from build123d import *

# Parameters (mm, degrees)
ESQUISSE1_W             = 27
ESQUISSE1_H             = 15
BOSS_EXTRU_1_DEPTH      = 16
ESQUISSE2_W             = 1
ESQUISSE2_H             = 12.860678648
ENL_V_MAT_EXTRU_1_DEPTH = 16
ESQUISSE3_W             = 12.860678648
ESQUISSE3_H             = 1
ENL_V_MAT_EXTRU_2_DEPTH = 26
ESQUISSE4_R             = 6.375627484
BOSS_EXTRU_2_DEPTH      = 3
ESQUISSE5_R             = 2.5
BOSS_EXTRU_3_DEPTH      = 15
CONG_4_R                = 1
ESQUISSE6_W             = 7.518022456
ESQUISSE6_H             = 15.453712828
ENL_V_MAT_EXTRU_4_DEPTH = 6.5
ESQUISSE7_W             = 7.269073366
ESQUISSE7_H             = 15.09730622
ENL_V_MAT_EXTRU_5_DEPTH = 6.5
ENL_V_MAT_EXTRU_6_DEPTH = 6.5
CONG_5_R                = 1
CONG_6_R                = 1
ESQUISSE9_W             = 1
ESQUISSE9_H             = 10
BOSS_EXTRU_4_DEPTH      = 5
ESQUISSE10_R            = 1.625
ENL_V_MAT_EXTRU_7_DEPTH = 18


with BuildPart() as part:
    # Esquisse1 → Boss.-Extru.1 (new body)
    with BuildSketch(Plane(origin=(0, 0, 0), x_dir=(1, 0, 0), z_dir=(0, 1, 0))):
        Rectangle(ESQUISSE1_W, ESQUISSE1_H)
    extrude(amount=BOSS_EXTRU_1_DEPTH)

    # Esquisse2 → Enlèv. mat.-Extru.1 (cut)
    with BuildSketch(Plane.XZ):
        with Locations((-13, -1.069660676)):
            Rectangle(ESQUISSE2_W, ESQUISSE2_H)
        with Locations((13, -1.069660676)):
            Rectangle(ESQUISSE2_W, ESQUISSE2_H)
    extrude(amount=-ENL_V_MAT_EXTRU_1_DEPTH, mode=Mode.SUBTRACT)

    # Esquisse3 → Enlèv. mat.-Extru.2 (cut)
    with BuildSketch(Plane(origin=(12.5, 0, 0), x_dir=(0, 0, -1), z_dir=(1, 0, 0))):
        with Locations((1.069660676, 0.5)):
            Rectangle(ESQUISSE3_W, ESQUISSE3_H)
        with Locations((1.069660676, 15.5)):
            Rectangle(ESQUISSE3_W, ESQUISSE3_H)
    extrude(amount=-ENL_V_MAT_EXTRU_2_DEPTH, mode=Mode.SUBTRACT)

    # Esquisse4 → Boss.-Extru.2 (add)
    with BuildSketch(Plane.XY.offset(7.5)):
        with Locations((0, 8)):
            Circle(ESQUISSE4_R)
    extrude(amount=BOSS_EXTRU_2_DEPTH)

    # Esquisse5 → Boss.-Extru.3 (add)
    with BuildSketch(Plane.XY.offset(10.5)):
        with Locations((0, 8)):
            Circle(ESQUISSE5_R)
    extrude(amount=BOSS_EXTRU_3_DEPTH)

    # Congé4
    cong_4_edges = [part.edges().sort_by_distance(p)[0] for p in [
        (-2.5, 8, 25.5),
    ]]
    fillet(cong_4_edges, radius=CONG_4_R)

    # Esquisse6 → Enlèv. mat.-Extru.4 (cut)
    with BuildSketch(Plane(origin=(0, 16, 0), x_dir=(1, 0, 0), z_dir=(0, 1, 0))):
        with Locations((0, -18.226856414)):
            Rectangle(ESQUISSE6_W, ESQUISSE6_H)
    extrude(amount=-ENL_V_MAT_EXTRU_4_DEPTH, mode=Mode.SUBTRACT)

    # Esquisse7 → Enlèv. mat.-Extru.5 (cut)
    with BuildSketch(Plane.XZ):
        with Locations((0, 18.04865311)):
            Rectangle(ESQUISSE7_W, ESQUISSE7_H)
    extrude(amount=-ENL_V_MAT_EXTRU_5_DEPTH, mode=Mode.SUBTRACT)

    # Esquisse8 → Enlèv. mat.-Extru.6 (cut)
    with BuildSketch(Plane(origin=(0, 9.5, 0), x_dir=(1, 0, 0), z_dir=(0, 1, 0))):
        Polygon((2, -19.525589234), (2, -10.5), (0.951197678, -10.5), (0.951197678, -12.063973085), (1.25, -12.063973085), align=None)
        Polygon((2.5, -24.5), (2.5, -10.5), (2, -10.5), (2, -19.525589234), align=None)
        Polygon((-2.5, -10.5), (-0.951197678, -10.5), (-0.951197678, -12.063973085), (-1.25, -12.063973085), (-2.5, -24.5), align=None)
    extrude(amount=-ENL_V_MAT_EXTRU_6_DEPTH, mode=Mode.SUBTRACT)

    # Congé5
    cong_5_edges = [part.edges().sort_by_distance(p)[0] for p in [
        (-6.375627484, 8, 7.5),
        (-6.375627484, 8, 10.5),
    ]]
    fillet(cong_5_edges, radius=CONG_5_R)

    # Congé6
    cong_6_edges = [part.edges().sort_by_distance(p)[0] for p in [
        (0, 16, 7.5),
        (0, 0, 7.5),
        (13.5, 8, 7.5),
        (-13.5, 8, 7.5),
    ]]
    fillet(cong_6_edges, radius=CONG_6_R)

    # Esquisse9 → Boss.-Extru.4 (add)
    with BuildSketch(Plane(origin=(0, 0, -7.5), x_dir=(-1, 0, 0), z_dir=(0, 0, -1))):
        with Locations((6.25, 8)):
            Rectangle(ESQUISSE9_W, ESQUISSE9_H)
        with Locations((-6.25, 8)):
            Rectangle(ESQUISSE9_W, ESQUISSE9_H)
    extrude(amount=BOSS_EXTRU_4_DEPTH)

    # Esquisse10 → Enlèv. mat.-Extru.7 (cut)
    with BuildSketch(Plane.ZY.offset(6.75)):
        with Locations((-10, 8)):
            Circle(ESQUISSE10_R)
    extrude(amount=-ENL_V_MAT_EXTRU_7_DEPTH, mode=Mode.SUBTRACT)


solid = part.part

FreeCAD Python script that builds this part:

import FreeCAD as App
import Part
import Sketcher

V = App.Vector


def edges_at(feature, points):
    """Names of the edges that pass closest to the given points."""
    edges = feature.Shape.Edges
    near = lambda p: min(range(len(edges)), key=lambda i: edges[i].distToShape(Part.Vertex(*p))[0])
    return sorted({f"Edge{near(p) + 1}" for p in points})


def add_polygon(sketch, points):
    """Adds a closed chain of lines whose ends are joined by coincident constraints."""
    first, n = sketch.GeometryCount, len(points)
    for a, b in zip(points, points[1:] + points[:1]):
        sketch.addGeometry(Part.LineSegment(App.Vector(*a, 0), App.Vector(*b, 0)), False)
    for i in range(n):
        sketch.addConstraint(Sketcher.Constraint("Coincident", first + i, 2, first + (i + 1) % n, 1))

doc = App.newDocument("Part")
body = doc.addObject("PartDesign::Body", "Body")

# Sketch on XZ plane
sketch1 = body.newObject("Sketcher::SketchObject", "Sketch")
sketch1.AttachmentSupport = (doc.getObject("XZ_Plane"), [""])
sketch1.MapMode = "FlatFace"
add_polygon(sketch1, [(-14, -8), (-14, 8), (14, 8), (14, -8)])  # lines 0-3
sketch1.addConstraint([
    Sketcher.Constraint("Vertical", 0),
    Sketcher.Constraint("Horizontal", 1),
    Sketcher.Constraint("Vertical", 2),
    Sketcher.Constraint("Horizontal", 3),
    Sketcher.Constraint("Symmetric", 0, 2, 2, 2, -1, 1),
    Sketcher.Constraint("DistanceX", 1, 1, 1, 2, 27.0),
    Sketcher.Constraint("DistanceY", 0, 1, 0, 2, 15.0),
])
pad1 = body.newObject("PartDesign::Pad", "Pad")
pad1.Profile = sketch1
pad1.Length = 16
pad1.Reversed = True

# Sketch on XZ plane
sketch2 = body.newObject("Sketcher::SketchObject", "Sketch001")
sketch2.AttachmentSupport = (doc.getObject("XZ_Plane"), [""])
sketch2.MapMode = "FlatFace"
add_polygon(sketch2, [(-13.5, 5.4), (-13.5, -7.5), (-12.5, -7.5), (-12.5, 5.4)])  # lines 0-3
add_polygon(sketch2, [(12.5, 5.4), (12.5, -7.5), (13.5, -7.5), (13.5, 5.4)])  # lines 4-7
sketch2.addConstraint([
    Sketcher.Constraint("Vertical", 0),
    Sketcher.Constraint("Horizontal", 1),
    Sketcher.Constraint("Vertical", 2),
    Sketcher.Constraint("Horizontal", 3),
    Sketcher.Constraint("Vertical", 4),
    Sketcher.Constraint("Horizontal", 5),
    Sketcher.Constraint("Vertical", 6),
    Sketcher.Constraint("Horizontal", 7),
    Sketcher.Constraint("Symmetric", 1, 2, 4, 2, -2),
    Sketcher.Constraint("Symmetric", 3, 2, 6, 2, -2),
    Sketcher.Constraint("DistanceX", 1, 1, 1, 2, 1.0),
    Sketcher.Constraint("DistanceX", 1, 2, 4, 2, 25.0),
    Sketcher.Constraint("DistanceY", 0, 2, -1, 1, 7.5),
    Sketcher.Constraint("DistanceY", 0, 2, 0, 1, 12.860679),
])
pocket1 = body.newObject("PartDesign::Pocket", "Pocket")
pocket1.Profile = sketch2
pocket1.Length = 16

# Sketch on YZ plane
sketch3 = body.newObject("Sketcher::SketchObject", "Sketch002")
sketch3.AttachmentSupport = (doc.getObject("YZ_Plane"), [""])
sketch3.MapMode = "FlatFace"
sketch3.AttachmentOffset = App.Placement(V(0, 0, 12.5), App.Rotation())
add_polygon(sketch3, [(1, 5.4), (0, 5.4), (0, -7.5), (1, -7.5)])  # lines 0-3
add_polygon(sketch3, [(16, 5.4), (15, 5.4), (15, -7.5), (16, -7.5)])  # lines 4-7
sketch3.addConstraint([
    Sketcher.Constraint("Horizontal", 0),
    Sketcher.Constraint("Vertical", 1),
    Sketcher.Constraint("Horizontal", 2),
    Sketcher.Constraint("Vertical", 3),
    Sketcher.Constraint("Horizontal", 4),
    Sketcher.Constraint("Vertical", 5),
    Sketcher.Constraint("Horizontal", 6),
    Sketcher.Constraint("Vertical", 7),
    Sketcher.Constraint("PointOnObject", 0, 2, -2),
    Sketcher.Constraint("Horizontal", 3, 2, 4, 2),
    Sketcher.Constraint("Horizontal", 2, 2, 5, 2),
    Sketcher.Constraint("Equal", 2, 4),
    Sketcher.Constraint("DistanceX", 0, 2, 0, 1, 1.0),
    Sketcher.Constraint("DistanceX", -1, 1, 4, 2, 15.0),
    Sketcher.Constraint("DistanceY", 1, 2, -1, 1, 7.5),
    Sketcher.Constraint("DistanceY", 1, 2, 1, 1, 12.860679),
])
pocket2 = body.newObject("PartDesign::Pocket", "Pocket001")
pocket2.Profile = sketch3
pocket2.Length = 26

# Sketch on XY plane
sketch4 = body.newObject("Sketcher::SketchObject", "Sketch003")
sketch4.AttachmentSupport = (doc.getObject("XY_Plane"), [""])
sketch4.MapMode = "FlatFace"
sketch4.AttachmentOffset = App.Placement(V(0, 0, 7.5), App.Rotation())
sketch4.addGeometry(Part.Circle(V(0, 8, 0), V(0, 0, 1), 6), False)
sketch4.addConstraint([
    Sketcher.Constraint("PointOnObject", 0, 3, -2),
    Sketcher.Constraint("DistanceY", -1, 1, 0, 3, 8.0),
    Sketcher.Constraint("Diameter", 0, 12.751255),
])
pad2 = body.newObject("PartDesign::Pad", "Pad001")
pad2.Profile = sketch4
pad2.Length = 3

# Sketch on XY plane
sketch5 = body.newObject("Sketcher::SketchObject", "Sketch004")
sketch5.AttachmentSupport = (doc.getObject("XY_Plane"), [""])
sketch5.MapMode = "FlatFace"
sketch5.AttachmentOffset = App.Placement(V(0, 0, 10.5), App.Rotation())
sketch5.addGeometry(Part.Circle(V(0, 8, 0), V(0, 0, 1), 2.5), False)
sketch5.addConstraint([
    Sketcher.Constraint("PointOnObject", 0, 3, -2),
    Sketcher.Constraint("Diameter", 0, 5.0),
    Sketcher.Constraint("DistanceY", -1, 1, 0, 3, 8.0),
])
pad3 = body.newObject("PartDesign::Pad", "Pad002")
pad3.Profile = sketch5
pad3.Length = 15
doc.recompute()

fillet = body.newObject("PartDesign::Fillet", "Fillet")
fillet.Base = (pad3, edges_at(pad3, [(-2.5, 8, 25.5)]))
fillet.Radius = 1

# Sketch on XZ plane
sketch6 = body.newObject("Sketcher::SketchObject", "Sketch005")
sketch6.AttachmentSupport = (doc.getObject("XZ_Plane"), [""])
sketch6.MapMode = "FlatFace"
sketch6.AttachmentOffset = App.Placement(V(0, 0, -16), App.Rotation())
add_polygon(sketch6, [(-4, 10), (-4, 26), (4, 26), (4, 10)])  # lines 0-3
sketch6.addConstraint([
    Sketcher.Constraint("Vertical", 0),
    Sketcher.Constraint("Horizontal", 1),
    Sketcher.Constraint("Vertical", 2),
    Sketcher.Constraint("Horizontal", 3),
    Sketcher.Constraint("DistanceY", -1, 1, 2, 2, 10.5),
    Sketcher.Constraint("DistanceX", 1, 1, 1, 2, 7.518022),
    Sketcher.Constraint("DistanceY", 0, 1, 0, 2, 15.453713),
    Sketcher.Constraint("DistanceX", 0, 2, -1, 1, 3.759011),
])
pocket3 = body.newObject("PartDesign::Pocket", "Pocket002")
pocket3.Profile = sketch6
pocket3.Length = 6.5
pocket3.Reversed = True

# Sketch on XZ plane
sketch7 = body.newObject("Sketcher::SketchObject", "Sketch006")
sketch7.AttachmentSupport = (doc.getObject("XZ_Plane"), [""])
sketch7.MapMode = "FlatFace"
add_polygon(sketch7, [(-4, 26), (-4, 10), (4, 10), (4, 26)])  # lines 0-3
sketch7.addConstraint([
    Sketcher.Constraint("Vertical", 0),
    Sketcher.Constraint("Horizontal", 1),
    Sketcher.Constraint("Vertical", 2),
    Sketcher.Constraint("Horizontal", 3),
    Sketcher.Constraint("DistanceY", -1, 1, 0, 2, 10.5),
    Sketcher.Constraint("DistanceX", 1, 1, 1, 2, 7.269073),
    Sketcher.Constraint("DistanceY", 0, 2, 0, 1, 15.097306),
    Sketcher.Constraint("DistanceX", 0, 2, -1, 1, 3.634537),
])
pocket4 = body.newObject("PartDesign::Pocket", "Pocket003")
pocket4.Profile = sketch7
pocket4.Length = 6.5

# Sketch on XZ plane
sketch8 = body.newObject("Sketcher::SketchObject", "Sketch007")
sketch8.AttachmentSupport = (doc.getObject("XZ_Plane"), [""])
sketch8.MapMode = "FlatFace"
sketch8.AttachmentOffset = App.Placement(V(0, 0, -9.5), App.Rotation())
add_polygon(sketch8, [(0.95, 10.5), (0.95, 12.06), (1.25, 12.06), (2.5, 24.5), (2.5, 10.5)])  # lines 0-4
add_polygon(sketch8, [(-0.95, 10.5), (-2.5, 10.5), (-2.5, 24.5), (-1.25, 12.06), (-0.95, 12.06)])  # lines 5-9
sketch8.addConstraint([
    Sketcher.Constraint("Vertical", 0),
    Sketcher.Constraint("Horizontal", 1),
    Sketcher.Constraint("Vertical", 3),
    Sketcher.Constraint("Horizontal", 4),
    Sketcher.Constraint("Horizontal", 5),
    Sketcher.Constraint("Vertical", 6),
    Sketcher.Constraint("Horizontal", 8),
    Sketcher.Constraint("Vertical", 9),
    Sketcher.Constraint("Symmetric", 3, 2, 5, 2, -2),
    Sketcher.Constraint("Symmetric", 1, 2, 7, 2, -2),
    Sketcher.Constraint("Horizontal", 2, 2, 6, 2),
    Sketcher.Constraint("Equal", 4, 5),
    Sketcher.Constraint("DistanceY", 3, 2, 3, 1, 14.0),
    Sketcher.Constraint("DistanceX", 5, 2, 3, 2, 5.0),
    Sketcher.Constraint("DistanceY", -1, 1, 2, 2, 24.5),
    Sketcher.Constraint("DistanceX", 7, 2, 1, 2, 2.5),
    Sketcher.Constraint("Distance", 2, 12.498691),
    Sketcher.Constraint("DistanceX", 1, 1, 1, 2, 0.298802),
])
pocket5 = body.newObject("PartDesign::Pocket", "Pocket004")
pocket5.Profile = sketch8
pocket5.Length = 6.5
pocket5.Reversed = True
doc.recompute()

fillet2 = body.newObject("PartDesign::Fillet", "Fillet001")
fillet2.Base = (pocket5, edges_at(pocket5, [(-6.376, 8, 7.5), (-6.376, 8, 10.5)]))
fillet2.Radius = 1
doc.recompute()

fillet3 = body.newObject("PartDesign::Fillet", "Fillet002")
fillet3.Base = (fillet2, edges_at(fillet2, [
    (0, 16, 7.5),
    (0, 0, 7.5),
    (13.5, 8, 7.5),
    (-13.5, 8, 7.5),
]))
fillet3.Radius = 1

# Sketch on XY plane
sketch9 = body.newObject("Sketcher::SketchObject", "Sketch008")
sketch9.AttachmentSupport = (doc.getObject("XY_Plane"), [""])
sketch9.MapMode = "FlatFace"
sketch9.AttachmentOffset = App.Placement(V(0, 0, -7.5), App.Rotation())
add_polygon(sketch9, [(-5.8, 13), (-5.8, 3), (-6.8, 3), (-6.8, 13)])  # lines 0-3
add_polygon(sketch9, [(6.8, 13), (6.8, 3), (5.8, 3), (5.8, 13)])  # lines 4-7
sketch9.addConstraint([
    Sketcher.Constraint("Vertical", 0),
    Sketcher.Constraint("Horizontal", 1),
    Sketcher.Constraint("Vertical", 2),
    Sketcher.Constraint("Horizontal", 3),
    Sketcher.Constraint("Vertical", 4),
    Sketcher.Constraint("Horizontal", 5),
    Sketcher.Constraint("Vertical", 6),
    Sketcher.Constraint("Horizontal", 7),
    Sketcher.Constraint("Symmetric", 1, 2, 4, 2, -2),
    Sketcher.Constraint("Symmetric", 3, 2, 6, 2, -2),
    Sketcher.Constraint("DistanceX", 1, 2, 1, 1, 1.0),
    Sketcher.Constraint("DistanceY", 0, 2, 0, 1, 10.0),
    Sketcher.Constraint("DistanceY", -1, 1, 0, 2, 3.0),
    Sketcher.Constraint("DistanceX", 0, 2, 4, 2, 12.5),
])
pad4 = body.newObject("PartDesign::Pad", "Pad003")
pad4.Profile = sketch9
pad4.Length = 5
pad4.Reversed = True

# Sketch on YZ plane
sketch10 = body.newObject("Sketcher::SketchObject", "Sketch009")
sketch10.AttachmentSupport = (doc.getObject("YZ_Plane"), [""])
sketch10.MapMode = "FlatFace"
sketch10.AttachmentOffset = App.Placement(V(0, 0, -6.75), App.Rotation())
sketch10.addGeometry(Part.Circle(V(8, -10, 0), V(0, 0, 1), 1.6), False)
sketch10.addConstraint([
    Sketcher.Constraint("Diameter", 0, 3.25),
    Sketcher.Constraint("DistanceX", -1, 1, 0, 3, 8.0),
    Sketcher.Constraint("DistanceY", 0, 3, -1, 1, 10.0),
])
pocket6 = body.newObject("PartDesign::Pocket", "Pocket005")
pocket6.Profile = sketch10
pocket6.Length = 18
pocket6.Reversed = True

doc.recompute()
